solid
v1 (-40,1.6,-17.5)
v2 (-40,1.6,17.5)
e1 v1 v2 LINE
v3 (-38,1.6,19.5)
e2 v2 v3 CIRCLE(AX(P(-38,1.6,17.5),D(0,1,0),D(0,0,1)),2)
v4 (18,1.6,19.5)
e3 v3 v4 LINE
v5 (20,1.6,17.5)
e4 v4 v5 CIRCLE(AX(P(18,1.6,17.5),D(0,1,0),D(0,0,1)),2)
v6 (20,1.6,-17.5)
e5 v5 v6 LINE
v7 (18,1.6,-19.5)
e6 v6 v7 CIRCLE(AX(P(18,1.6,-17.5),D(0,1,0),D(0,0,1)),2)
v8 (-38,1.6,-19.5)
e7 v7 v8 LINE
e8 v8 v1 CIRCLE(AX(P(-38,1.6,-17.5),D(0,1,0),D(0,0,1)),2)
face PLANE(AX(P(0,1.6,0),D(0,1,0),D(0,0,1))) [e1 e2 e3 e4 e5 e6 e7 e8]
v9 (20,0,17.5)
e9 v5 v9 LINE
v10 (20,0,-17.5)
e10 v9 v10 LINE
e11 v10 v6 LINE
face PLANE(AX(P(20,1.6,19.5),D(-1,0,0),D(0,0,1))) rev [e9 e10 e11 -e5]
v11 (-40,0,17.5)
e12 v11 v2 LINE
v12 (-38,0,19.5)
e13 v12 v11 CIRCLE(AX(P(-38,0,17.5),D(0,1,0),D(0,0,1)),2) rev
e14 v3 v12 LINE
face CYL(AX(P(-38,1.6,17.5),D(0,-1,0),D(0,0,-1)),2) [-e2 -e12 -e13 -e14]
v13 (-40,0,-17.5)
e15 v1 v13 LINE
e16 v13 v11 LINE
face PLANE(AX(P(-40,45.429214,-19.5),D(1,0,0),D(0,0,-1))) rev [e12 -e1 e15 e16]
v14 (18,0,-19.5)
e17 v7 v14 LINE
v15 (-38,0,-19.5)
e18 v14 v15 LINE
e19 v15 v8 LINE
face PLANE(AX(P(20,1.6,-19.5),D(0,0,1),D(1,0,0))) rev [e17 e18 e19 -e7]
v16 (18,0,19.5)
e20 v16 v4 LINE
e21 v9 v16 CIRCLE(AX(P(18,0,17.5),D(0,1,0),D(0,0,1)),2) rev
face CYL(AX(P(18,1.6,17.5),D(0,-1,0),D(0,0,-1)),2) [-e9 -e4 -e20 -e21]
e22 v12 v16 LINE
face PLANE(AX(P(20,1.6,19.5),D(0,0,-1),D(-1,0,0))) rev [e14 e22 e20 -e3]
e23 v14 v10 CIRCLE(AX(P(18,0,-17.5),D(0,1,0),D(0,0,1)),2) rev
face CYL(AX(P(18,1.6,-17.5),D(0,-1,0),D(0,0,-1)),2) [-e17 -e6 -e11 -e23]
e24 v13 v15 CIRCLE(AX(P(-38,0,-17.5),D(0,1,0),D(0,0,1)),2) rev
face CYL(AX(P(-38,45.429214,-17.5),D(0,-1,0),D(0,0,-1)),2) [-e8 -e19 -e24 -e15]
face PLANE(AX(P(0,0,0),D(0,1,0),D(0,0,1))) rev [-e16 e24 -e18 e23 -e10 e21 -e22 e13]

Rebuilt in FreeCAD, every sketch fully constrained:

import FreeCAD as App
import Part
import Sketcher

V = App.Vector
Q = App.Units.Quantity


def edges_at(feature, points):
    """Names of the edges that pass closest to the given points."""
    edges = feature.Shape.Edges
    near = lambda p: min(range(len(edges)), key=lambda i: edges[i].distToShape(Part.Vertex(*p))[0])
    return sorted({f"Edge{near(p) + 1}" for p in points})


def add_polygon(sketch, points):
    """Adds a closed chain of lines whose ends are joined by coincident constraints."""
    first, n = sketch.GeometryCount, len(points)
    for a, b in zip(points, points[1:] + points[:1]):
        sketch.addGeometry(Part.LineSegment(App.Vector(*a, 0), App.Vector(*b, 0)), False)
    for i in range(n):
        sketch.addConstraint(Sketcher.Constraint("Coincident", first + i, 2, first + (i + 1) % n, 1))

doc = App.newDocument("Part")
params = doc.addObject("Spreadsheet::Sheet", "Params")
for row, (alias, value) in enumerate([
    ("sketch1_width", "40 mm"),
    ("sketch1_height", "39 mm"),
    ("pad1_length", "1.6 mm"),
    ("sketch2_width", "20 mm"),
    ("sketch2_height", "39 mm"),
    ("pad2_length", "1.6 mm"),
    ("fillet_radius", "2 mm"),
], start=1):
    params.set(f"A{row}", alias)
    params.set(f"B{row}", "=" + value)
    params.setAlias(f"B{row}", alias)

body = doc.addObject("PartDesign::Body", "Body")

# Sketch on XZ plane
sketch1 = body.newObject("Sketcher::SketchObject", "Sketch")
sketch1.AttachmentSupport = (doc.getObject("XZ_Plane"), [""])
sketch1.MapMode = "FlatFace"
add_polygon(sketch1, [(-20, -20), (-20, 20), (20, 20), (20, -20)])  # lines 0-3
sketch1.addConstraint([
    Sketcher.Constraint("Vertical", 0),
    Sketcher.Constraint("Horizontal", 1),
    Sketcher.Constraint("Vertical", 2),
    Sketcher.Constraint("Horizontal", 3),
    Sketcher.Constraint("Symmetric", 0, 2, 2, 2, -1, 1),
    Sketcher.Constraint("DistanceX", 1, 1, 1, 2, Q("40 mm")),
    Sketcher.Constraint("DistanceY", 0, 1, 0, 2, Q("39 mm")),
])
sketch1.setExpression("Constraints[9]", "Params.sketch1_width")
sketch1.setExpression("Constraints[10]", "Params.sketch1_height")
pad1 = body.newObject("PartDesign::Pad", "Pad")
pad1.Profile = sketch1
pad1.setExpression("Length", "Params.pad1_length")
pad1.Reversed = True

# Sketch on XZ plane
sketch2 = body.newObject("Sketcher::SketchObject", "Sketch001")
sketch2.AttachmentSupport = (doc.getObject("XZ_Plane"), [""])
sketch2.MapMode = "FlatFace"
add_polygon(sketch2, [(-40, -20), (-40, 20), (-20, 20), (-20, -20)])  # lines 0-3
sketch2.addConstraint([
    Sketcher.Constraint("Vertical", 0),
    Sketcher.Constraint("Horizontal", 1),
    Sketcher.Constraint("Vertical", 2),
    Sketcher.Constraint("Horizontal", 3),
    Sketcher.Constraint("DistanceX", 1, 1, 1, 2, Q("20 mm")),
    Sketcher.Constraint("DistanceY", 0, 1, 0, 2, Q("39 mm")),
    Sketcher.Constraint("DistanceX", 0, 2, -1, 1, Q("40 mm")),
    Sketcher.Constraint("DistanceY", -1, 1, 0, 2, Q("19.5 mm")),
])
sketch2.setExpression("Constraints[8]", "Params.sketch2_width")
sketch2.setExpression("Constraints[9]", "Params.sketch2_height")
pad2 = body.newObject("PartDesign::Pad", "Pad001")
pad2.Profile = sketch2
pad2.setExpression("Length", "Params.pad2_length")
pad2.Reversed = True
doc.recompute()

fillet = body.newObject("PartDesign::Fillet", "Fillet")
fillet.Base = (pad2, edges_at(pad2, [
    (-40, 0.8, -19.5),
    (-40, 0.8, 19.5),
    (20, 0.8, -19.5),
    (20, 0.8, 19.5),
]))
fillet.setExpression("Radius", "Params.fillet_radius")

doc.recompute()
